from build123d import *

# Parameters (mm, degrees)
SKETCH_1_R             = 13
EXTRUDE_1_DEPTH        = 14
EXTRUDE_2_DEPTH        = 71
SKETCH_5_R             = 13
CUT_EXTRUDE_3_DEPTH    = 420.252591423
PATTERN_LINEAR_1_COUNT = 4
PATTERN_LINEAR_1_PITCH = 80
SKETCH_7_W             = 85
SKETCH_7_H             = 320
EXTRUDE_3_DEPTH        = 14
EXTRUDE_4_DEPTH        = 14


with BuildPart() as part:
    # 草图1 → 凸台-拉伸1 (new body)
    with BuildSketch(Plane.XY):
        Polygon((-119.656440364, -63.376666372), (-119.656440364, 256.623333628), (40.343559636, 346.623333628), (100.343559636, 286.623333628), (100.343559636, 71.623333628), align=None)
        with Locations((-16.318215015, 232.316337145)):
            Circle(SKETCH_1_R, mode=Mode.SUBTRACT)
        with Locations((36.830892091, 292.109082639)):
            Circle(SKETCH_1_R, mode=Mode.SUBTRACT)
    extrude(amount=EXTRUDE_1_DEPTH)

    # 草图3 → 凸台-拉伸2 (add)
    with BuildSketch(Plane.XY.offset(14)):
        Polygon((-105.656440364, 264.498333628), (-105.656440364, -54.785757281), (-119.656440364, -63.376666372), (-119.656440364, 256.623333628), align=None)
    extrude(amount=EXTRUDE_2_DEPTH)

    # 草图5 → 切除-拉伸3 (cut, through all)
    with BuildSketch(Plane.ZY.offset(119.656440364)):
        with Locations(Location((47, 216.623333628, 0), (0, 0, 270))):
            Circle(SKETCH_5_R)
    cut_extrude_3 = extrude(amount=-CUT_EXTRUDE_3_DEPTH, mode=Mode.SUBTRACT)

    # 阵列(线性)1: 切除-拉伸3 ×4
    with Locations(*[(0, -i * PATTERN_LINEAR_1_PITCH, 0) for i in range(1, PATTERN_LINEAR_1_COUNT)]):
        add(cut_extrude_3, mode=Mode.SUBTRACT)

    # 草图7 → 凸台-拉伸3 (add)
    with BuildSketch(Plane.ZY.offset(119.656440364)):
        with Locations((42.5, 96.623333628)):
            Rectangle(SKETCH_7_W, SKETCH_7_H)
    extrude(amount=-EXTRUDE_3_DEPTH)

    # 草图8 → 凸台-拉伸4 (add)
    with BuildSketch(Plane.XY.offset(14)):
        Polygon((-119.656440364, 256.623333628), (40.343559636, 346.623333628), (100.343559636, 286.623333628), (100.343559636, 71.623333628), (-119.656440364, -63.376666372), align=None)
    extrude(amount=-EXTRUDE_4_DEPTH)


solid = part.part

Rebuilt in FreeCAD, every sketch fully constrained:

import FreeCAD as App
import Part
import Sketcher

V = App.Vector
Q = App.Units.Quantity


def add_polygon(sketch, points):
    """Adds a closed chain of lines whose ends are joined by coincident constraints."""
    first, n = sketch.GeometryCount, len(points)
    for a, b in zip(points, points[1:] + points[:1]):
        sketch.addGeometry(Part.LineSegment(App.Vector(*a, 0), App.Vector(*b, 0)), False)
    for i in range(n):
        sketch.addConstraint(Sketcher.Constraint("Coincident", first + i, 2, first + (i + 1) % n, 1))

doc = App.newDocument("Part")
body = doc.addObject("PartDesign::Body", "Body")

# Sketch on XY plane
sketch1 = body.newObject("Sketcher::SketchObject", "Sketch")
sketch1.AttachmentSupport = (doc.getObject("XY_Plane"), [""])
sketch1.MapMode = "FlatFace"
add_polygon(sketch1, [(-120, 257), (-120, -63), (100, 72), (100, 287), (40, 347)])  # lines 0-4
sketch1.addGeometry(Part.Circle(V(-16, 232, 0), V(0, 0, 1), 13), False)  # 5
sketch1.addGeometry(Part.Circle(V(37, 292, 0), V(0, 0, 1), 13), False)  # 6
sketch1.addConstraint(Sketcher.Constraint("Vertical", 0))
sketch1.addConstraint(Sketcher.Constraint("Vertical", 2))
sketch1.addConstraint(Sketcher.Constraint("Equal", 5, 6))
sketch1.addConstraint(Sketcher.Constraint("Diameter", 5, 26.0))
sketch1.addConstraint(Sketcher.Constraint("DistanceY", 0, 2, 0, 1, 320.0))
sketch1.addConstraint(Sketcher.Constraint("DistanceY", 2, 1, 2, 2, 215.0))
sketch1.addConstraint(Sketcher.Constraint("Angle", 3, Q("135 deg")))
sketch1.addConstraint(Sketcher.Constraint("DistanceX", 0, 2, 1, 2, 220.0))
sketch1.addConstraint(Sketcher.Constraint("DistanceY", 0, 2, 1, 2, 135.0))
sketch1.addConstraint(Sketcher.Constraint("DistanceX", 3, 2, 2, 2, 60.0))
sketch1.addConstraint(Sketcher.Constraint("DistanceX", 0, 2, -1, 1, 119.65644))
sketch1.addConstraint(Sketcher.Constraint("DistanceY", 0, 2, 6, 3, 355.485749))
sketch1.addConstraint(Sketcher.Constraint("DistanceX", 5, 3, -1, 1, 16.318215))
sketch1.addConstraint(Sketcher.Constraint("DistanceY", -1, 1, 5, 3, 232.316337))
sketch1.addConstraint(Sketcher.Constraint("DistanceX", -1, 1, 6, 3, 36.830892))
sketch1.addConstraint(Sketcher.Constraint("DistanceY", -1, 1, 6, 3, 292.109083))
pad1 = body.newObject("PartDesign::Pad", "Pad")
pad1.Profile = sketch1
pad1.Length = 14

# Sketch on XY plane
sketch2 = body.newObject("Sketcher::SketchObject", "Sketch001")
sketch2.AttachmentSupport = (doc.getObject("XY_Plane"), [""])
sketch2.MapMode = "FlatFace"
sketch2.AttachmentOffset = App.Placement(V(0, 0, 14), App.Rotation())
add_polygon(sketch2, [(-106, -55), (-106, 264), (-120, 257), (-120, -63)])  # lines 0-3
sketch2.addConstraint(Sketcher.Constraint("Vertical", 0))
sketch2.addConstraint(Sketcher.Constraint("Vertical", 2))
sketch2.addConstraint(Sketcher.Constraint("DistanceY", 2, 2, 2, 1, 320.0))
sketch2.addConstraint(Sketcher.Constraint("DistanceX", 1, 2, 0, 2, 14.0))
sketch2.addConstraint(Sketcher.Constraint("DistanceY", 1, 2, 0, 2, 7.875))
sketch2.addConstraint(Sketcher.Constraint("DistanceY", 0, 1, 0, 2, 319.284091))
sketch2.addConstraint(Sketcher.Constraint("DistanceX", 0, 2, -1, 1, 105.65644))
sketch2.addConstraint(Sketcher.Constraint("DistanceY", -1, 1, 0, 2, 264.498334))
pad2 = body.newObject("PartDesign::Pad", "Pad001")
pad2.Profile = sketch2
pad2.Length = 71

# Sketch on YZ plane
sketch3 = body.newObject("Sketcher::SketchObject", "Sketch002")
sketch3.AttachmentSupport = (doc.getObject("YZ_Plane"), [""])
sketch3.MapMode = "FlatFace"
sketch3.AttachmentOffset = App.Placement(V(0, 0, -119.65644), App.Rotation())
sketch3.addGeometry(Part.Circle(V(217, 47, 0), V(0, 0, 1), 13), False)
sketch3.addConstraint(Sketcher.Constraint("Diameter", 0, 26.0))
sketch3.addConstraint(Sketcher.Constraint("DistanceY", -1, 1, 0, 3, 47.0))
sketch3.addConstraint(Sketcher.Constraint("DistanceX", -1, 1, 0, 3, 216.623334))
pocket1 = body.newObject("PartDesign::Pocket", "Pocket")
pocket1.Profile = sketch3
pocket1.Type = "ThroughAll"
pocket1.Reversed = True
doc.recompute()

linearpattern = body.newObject("PartDesign::LinearPattern", "LinearPattern")
linearpattern.Originals = [pocket1]
linearpattern.Direction = (doc.getObject("Y_Axis"), [""])
linearpattern.Mode = "offset"
linearpattern.Offset = 80
linearpattern.Occurrences = 4
linearpattern.Reversed = True
body.Tip = linearpattern

# Sketch on YZ plane
sketch4 = body.newObject("Sketcher::SketchObject", "Sketch003")
sketch4.AttachmentSupport = (doc.getObject("YZ_Plane"), [""])
sketch4.MapMode = "FlatFace"
sketch4.AttachmentOffset = App.Placement(V(0, 0, -119.65644), App.Rotation())
add_polygon(sketch4, [(257, 0), (-63, 0), (-63, 85), (257, 85)])  # lines 0-3
sketch4.addConstraint(Sketcher.Constraint("Horizontal", 0))
sketch4.addConstraint(Sketcher.Constraint("Vertical", 1))
sketch4.addConstraint(Sketcher.Constraint("Horizontal", 2))
sketch4.addConstraint(Sketcher.Constraint("Vertical", 3))
sketch4.addConstraint(Sketcher.Constraint("PointOnObject", 0, 2, -1))
sketch4.addConstraint(Sketcher.Constraint("DistanceX", 0, 2, 0, 1, 320.0))
sketch4.addConstraint(Sketcher.Constraint("DistanceY", 1, 1, 1, 2, 85.0))
sketch4.addConstraint(Sketcher.Constraint("DistanceX", 0, 2, -1, 1, 63.376666))
pad3 = body.newObject("PartDesign::Pad", "Pad002")
pad3.Profile = sketch4
pad3.Length = 14

# Sketch on XY plane
sketch5 = body.newObject("Sketcher::SketchObject", "Sketch004")
sketch5.AttachmentSupport = (doc.getObject("XY_Plane"), [""])
sketch5.MapMode = "FlatFace"
sketch5.AttachmentOffset = App.Placement(V(0, 0, 14), App.Rotation())
add_polygon(sketch5, [(40, 347), (-120, 257), (-120, -63), (100, 72), (100, 287)])  # lines 0-4
sketch5.addConstraint(Sketcher.Constraint("Vertical", 1))
sketch5.addConstraint(Sketcher.Constraint("Vertical", 3))
sketch5.addConstraint(Sketcher.Constraint("DistanceY", 1, 2, 1, 1, 320.0))
sketch5.addConstraint(Sketcher.Constraint("DistanceY", 3, 1, 3, 2, 215.0))
sketch5.addConstraint(Sketcher.Constraint("Angle", 4, Q("135 deg")))
sketch5.addConstraint(Sketcher.Constraint("DistanceX", 1, 2, 2, 2, 220.0))
sketch5.addConstraint(Sketcher.Constraint("DistanceY", 1, 2, 2, 2, 135.0))
sketch5.addConstraint(Sketcher.Constraint("DistanceX", 4, 2, 3, 2, 60.0))
sketch5.addConstraint(Sketcher.Constraint("DistanceX", 0, 2, -1, 1, 119.65644))
sketch5.addConstraint(Sketcher.Constraint("DistanceY", -1, 1, 0, 2, 256.623334))
pad4 = body.newObject("PartDesign::Pad", "Pad003")
pad4.Profile = sketch5
pad4.Length = 14
pad4.Reversed = True

doc.recompute()
